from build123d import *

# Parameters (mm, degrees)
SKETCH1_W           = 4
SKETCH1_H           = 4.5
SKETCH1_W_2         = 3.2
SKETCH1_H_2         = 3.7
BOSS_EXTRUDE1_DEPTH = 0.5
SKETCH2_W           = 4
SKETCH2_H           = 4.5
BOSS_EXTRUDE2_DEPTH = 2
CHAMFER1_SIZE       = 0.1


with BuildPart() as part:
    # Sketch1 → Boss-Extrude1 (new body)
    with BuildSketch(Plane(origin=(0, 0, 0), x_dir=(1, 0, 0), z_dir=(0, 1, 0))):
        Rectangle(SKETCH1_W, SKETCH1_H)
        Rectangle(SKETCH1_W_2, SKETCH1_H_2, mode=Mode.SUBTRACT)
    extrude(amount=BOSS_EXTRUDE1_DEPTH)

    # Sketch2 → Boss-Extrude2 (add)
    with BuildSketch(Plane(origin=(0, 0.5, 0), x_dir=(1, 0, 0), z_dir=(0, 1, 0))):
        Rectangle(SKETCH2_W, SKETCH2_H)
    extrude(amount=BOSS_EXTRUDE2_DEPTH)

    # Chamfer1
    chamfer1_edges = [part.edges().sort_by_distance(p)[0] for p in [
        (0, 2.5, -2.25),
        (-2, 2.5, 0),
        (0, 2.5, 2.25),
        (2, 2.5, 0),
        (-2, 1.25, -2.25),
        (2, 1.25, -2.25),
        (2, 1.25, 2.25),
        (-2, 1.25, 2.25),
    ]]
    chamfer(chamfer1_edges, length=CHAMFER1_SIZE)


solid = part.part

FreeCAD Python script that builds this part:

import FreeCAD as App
import Part
import Sketcher
from FreeCAD import Vector


def edges_at(feature, points):
    """Names of the edges that pass closest to the given points."""
    edges = feature.Shape.Edges
    near = lambda p: min(range(len(edges)), key=lambda i: edges[i].distToShape(Part.Vertex(*p))[0])
    return sorted({f"Edge{near(p) + 1}" for p in points})

doc = App.newDocument("Part")
body = doc.addObject("PartDesign::Body", "Body")

# Sketch on XZ plane
sketch1 = body.newObject("Sketcher::SketchObject", "Sketch")
sketch1.AttachmentSupport = (doc.getObject("XZ_Plane"), [""])
sketch1.MapMode = "FlatFace"
sketch1.addGeometry([
    Part.LineSegment(Vector(-2, -2.2, 0), Vector(-2, 2.2, 0)),  # 0
    Part.LineSegment(Vector(-2, 2.2, 0), Vector(2, 2.2, 0)),  # 1
    Part.LineSegment(Vector(2, 2.2, 0), Vector(2, -2.2, 0)),  # 2
    Part.LineSegment(Vector(2, -2.2, 0), Vector(-2, -2.2, 0)),  # 3
    Part.LineSegment(Vector(1.6, 1.9, 0), Vector(-1.6, 1.9, 0)),  # 4
    Part.LineSegment(Vector(-1.6, 1.9, 0), Vector(-1.6, -1.9, 0)),  # 5
    Part.LineSegment(Vector(-1.6, -1.9, 0), Vector(1.6, -1.9, 0)),  # 6
    Part.LineSegment(Vector(1.6, -1.9, 0), Vector(1.6, 1.9, 0)),  # 7
], False)
sketch1.addConstraint([
    Sketcher.Constraint("Coincident", 0, 2, 1, 1),
    Sketcher.Constraint("Coincident", 1, 2, 2, 1),
    Sketcher.Constraint("Coincident", 2, 2, 3, 1),
    Sketcher.Constraint("Coincident", 3, 2, 0, 1),
    Sketcher.Constraint("Coincident", 4, 2, 5, 1),
    Sketcher.Constraint("Coincident", 5, 2, 6, 1),
    Sketcher.Constraint("Coincident", 6, 2, 7, 1),
    Sketcher.Constraint("Coincident", 7, 2, 4, 1),
    Sketcher.Constraint("Vertical", 0),
    Sketcher.Constraint("Horizontal", 1),
    Sketcher.Constraint("Vertical", 2),
    Sketcher.Constraint("Horizontal", 3),
    Sketcher.Constraint("Horizontal", 4),
    Sketcher.Constraint("Vertical", 5),
    Sketcher.Constraint("Horizontal", 6),
    Sketcher.Constraint("Vertical", 7),
    Sketcher.Constraint("Symmetric", 0, 2, 2, 2, -1, 1),
    Sketcher.Constraint("Symmetric", 4, 2, 6, 2, -1, 1),
    Sketcher.Constraint("DistanceX", 1, 1, 1, 2, 4.0),
    Sketcher.Constraint("DistanceX", 4, 2, 4, 1, 3.2),
    Sketcher.Constraint("DistanceY", 0, 1, 0, 2, 4.5),
    Sketcher.Constraint("DistanceY", 5, 2, 5, 1, 3.7),
])
pad1 = body.newObject("PartDesign::Pad", "Pad")
pad1.Profile = sketch1
pad1.Length = 0.5
pad1.Reversed = True

# Sketch on XZ plane
sketch2 = body.newObject("Sketcher::SketchObject", "Sketch001")
sketch2.AttachmentSupport = (doc.getObject("XZ_Plane"), [""])
sketch2.MapMode = "FlatFace"
sketch2.AttachmentOffset = App.Placement(Vector(0, 0, -0.5), App.Rotation())
sketch2.addGeometry([
    Part.LineSegment(Vector(-2, -2.2, 0), Vector(-2, 2.2, 0)),
    Part.LineSegment(Vector(-2, 2.2, 0), Vector(2, 2.2, 0)),
    Part.LineSegment(Vector(2, 2.2, 0), Vector(2, -2.2, 0)),
    Part.LineSegment(Vector(2, -2.2, 0), Vector(-2, -2.2, 0)),
], False)
sketch2.addConstraint([
    Sketcher.Constraint("Coincident", 0, 2, 1, 1),
    Sketcher.Constraint("Coincident", 1, 2, 2, 1),
    Sketcher.Constraint("Coincident", 2, 2, 3, 1),
    Sketcher.Constraint("Coincident", 3, 2, 0, 1),
    Sketcher.Constraint("Vertical", 0),
    Sketcher.Constraint("Horizontal", 1),
    Sketcher.Constraint("Vertical", 2),
    Sketcher.Constraint("Horizontal", 3),
    Sketcher.Constraint("Symmetric", 0, 2, 2, 2, -1, 1),
    Sketcher.Constraint("DistanceX", 1, 1, 1, 2, 4.0),
    Sketcher.Constraint("DistanceY", 0, 1, 0, 2, 4.5),
])
pad2 = body.newObject("PartDesign::Pad", "Pad001")
pad2.Profile = sketch2
pad2.Length = 2
pad2.Reversed = True
doc.recompute()

chamfer = body.newObject("PartDesign::Chamfer", "Chamfer")
chamfer.Base = (pad2, edges_at(pad2, [
    (0, 2.5, -2.25),
    (-2, 2.5, 0),
    (0, 2.5, 2.25),
    (2, 2.5, 0),
    (-2, 1.25, -2.25),
    (2, 1.25, -2.25),
    (2, 1.25, 2.25),
    (-2, 1.25, 2.25),
]))
chamfer.Size = 0.1

doc.recompute()
